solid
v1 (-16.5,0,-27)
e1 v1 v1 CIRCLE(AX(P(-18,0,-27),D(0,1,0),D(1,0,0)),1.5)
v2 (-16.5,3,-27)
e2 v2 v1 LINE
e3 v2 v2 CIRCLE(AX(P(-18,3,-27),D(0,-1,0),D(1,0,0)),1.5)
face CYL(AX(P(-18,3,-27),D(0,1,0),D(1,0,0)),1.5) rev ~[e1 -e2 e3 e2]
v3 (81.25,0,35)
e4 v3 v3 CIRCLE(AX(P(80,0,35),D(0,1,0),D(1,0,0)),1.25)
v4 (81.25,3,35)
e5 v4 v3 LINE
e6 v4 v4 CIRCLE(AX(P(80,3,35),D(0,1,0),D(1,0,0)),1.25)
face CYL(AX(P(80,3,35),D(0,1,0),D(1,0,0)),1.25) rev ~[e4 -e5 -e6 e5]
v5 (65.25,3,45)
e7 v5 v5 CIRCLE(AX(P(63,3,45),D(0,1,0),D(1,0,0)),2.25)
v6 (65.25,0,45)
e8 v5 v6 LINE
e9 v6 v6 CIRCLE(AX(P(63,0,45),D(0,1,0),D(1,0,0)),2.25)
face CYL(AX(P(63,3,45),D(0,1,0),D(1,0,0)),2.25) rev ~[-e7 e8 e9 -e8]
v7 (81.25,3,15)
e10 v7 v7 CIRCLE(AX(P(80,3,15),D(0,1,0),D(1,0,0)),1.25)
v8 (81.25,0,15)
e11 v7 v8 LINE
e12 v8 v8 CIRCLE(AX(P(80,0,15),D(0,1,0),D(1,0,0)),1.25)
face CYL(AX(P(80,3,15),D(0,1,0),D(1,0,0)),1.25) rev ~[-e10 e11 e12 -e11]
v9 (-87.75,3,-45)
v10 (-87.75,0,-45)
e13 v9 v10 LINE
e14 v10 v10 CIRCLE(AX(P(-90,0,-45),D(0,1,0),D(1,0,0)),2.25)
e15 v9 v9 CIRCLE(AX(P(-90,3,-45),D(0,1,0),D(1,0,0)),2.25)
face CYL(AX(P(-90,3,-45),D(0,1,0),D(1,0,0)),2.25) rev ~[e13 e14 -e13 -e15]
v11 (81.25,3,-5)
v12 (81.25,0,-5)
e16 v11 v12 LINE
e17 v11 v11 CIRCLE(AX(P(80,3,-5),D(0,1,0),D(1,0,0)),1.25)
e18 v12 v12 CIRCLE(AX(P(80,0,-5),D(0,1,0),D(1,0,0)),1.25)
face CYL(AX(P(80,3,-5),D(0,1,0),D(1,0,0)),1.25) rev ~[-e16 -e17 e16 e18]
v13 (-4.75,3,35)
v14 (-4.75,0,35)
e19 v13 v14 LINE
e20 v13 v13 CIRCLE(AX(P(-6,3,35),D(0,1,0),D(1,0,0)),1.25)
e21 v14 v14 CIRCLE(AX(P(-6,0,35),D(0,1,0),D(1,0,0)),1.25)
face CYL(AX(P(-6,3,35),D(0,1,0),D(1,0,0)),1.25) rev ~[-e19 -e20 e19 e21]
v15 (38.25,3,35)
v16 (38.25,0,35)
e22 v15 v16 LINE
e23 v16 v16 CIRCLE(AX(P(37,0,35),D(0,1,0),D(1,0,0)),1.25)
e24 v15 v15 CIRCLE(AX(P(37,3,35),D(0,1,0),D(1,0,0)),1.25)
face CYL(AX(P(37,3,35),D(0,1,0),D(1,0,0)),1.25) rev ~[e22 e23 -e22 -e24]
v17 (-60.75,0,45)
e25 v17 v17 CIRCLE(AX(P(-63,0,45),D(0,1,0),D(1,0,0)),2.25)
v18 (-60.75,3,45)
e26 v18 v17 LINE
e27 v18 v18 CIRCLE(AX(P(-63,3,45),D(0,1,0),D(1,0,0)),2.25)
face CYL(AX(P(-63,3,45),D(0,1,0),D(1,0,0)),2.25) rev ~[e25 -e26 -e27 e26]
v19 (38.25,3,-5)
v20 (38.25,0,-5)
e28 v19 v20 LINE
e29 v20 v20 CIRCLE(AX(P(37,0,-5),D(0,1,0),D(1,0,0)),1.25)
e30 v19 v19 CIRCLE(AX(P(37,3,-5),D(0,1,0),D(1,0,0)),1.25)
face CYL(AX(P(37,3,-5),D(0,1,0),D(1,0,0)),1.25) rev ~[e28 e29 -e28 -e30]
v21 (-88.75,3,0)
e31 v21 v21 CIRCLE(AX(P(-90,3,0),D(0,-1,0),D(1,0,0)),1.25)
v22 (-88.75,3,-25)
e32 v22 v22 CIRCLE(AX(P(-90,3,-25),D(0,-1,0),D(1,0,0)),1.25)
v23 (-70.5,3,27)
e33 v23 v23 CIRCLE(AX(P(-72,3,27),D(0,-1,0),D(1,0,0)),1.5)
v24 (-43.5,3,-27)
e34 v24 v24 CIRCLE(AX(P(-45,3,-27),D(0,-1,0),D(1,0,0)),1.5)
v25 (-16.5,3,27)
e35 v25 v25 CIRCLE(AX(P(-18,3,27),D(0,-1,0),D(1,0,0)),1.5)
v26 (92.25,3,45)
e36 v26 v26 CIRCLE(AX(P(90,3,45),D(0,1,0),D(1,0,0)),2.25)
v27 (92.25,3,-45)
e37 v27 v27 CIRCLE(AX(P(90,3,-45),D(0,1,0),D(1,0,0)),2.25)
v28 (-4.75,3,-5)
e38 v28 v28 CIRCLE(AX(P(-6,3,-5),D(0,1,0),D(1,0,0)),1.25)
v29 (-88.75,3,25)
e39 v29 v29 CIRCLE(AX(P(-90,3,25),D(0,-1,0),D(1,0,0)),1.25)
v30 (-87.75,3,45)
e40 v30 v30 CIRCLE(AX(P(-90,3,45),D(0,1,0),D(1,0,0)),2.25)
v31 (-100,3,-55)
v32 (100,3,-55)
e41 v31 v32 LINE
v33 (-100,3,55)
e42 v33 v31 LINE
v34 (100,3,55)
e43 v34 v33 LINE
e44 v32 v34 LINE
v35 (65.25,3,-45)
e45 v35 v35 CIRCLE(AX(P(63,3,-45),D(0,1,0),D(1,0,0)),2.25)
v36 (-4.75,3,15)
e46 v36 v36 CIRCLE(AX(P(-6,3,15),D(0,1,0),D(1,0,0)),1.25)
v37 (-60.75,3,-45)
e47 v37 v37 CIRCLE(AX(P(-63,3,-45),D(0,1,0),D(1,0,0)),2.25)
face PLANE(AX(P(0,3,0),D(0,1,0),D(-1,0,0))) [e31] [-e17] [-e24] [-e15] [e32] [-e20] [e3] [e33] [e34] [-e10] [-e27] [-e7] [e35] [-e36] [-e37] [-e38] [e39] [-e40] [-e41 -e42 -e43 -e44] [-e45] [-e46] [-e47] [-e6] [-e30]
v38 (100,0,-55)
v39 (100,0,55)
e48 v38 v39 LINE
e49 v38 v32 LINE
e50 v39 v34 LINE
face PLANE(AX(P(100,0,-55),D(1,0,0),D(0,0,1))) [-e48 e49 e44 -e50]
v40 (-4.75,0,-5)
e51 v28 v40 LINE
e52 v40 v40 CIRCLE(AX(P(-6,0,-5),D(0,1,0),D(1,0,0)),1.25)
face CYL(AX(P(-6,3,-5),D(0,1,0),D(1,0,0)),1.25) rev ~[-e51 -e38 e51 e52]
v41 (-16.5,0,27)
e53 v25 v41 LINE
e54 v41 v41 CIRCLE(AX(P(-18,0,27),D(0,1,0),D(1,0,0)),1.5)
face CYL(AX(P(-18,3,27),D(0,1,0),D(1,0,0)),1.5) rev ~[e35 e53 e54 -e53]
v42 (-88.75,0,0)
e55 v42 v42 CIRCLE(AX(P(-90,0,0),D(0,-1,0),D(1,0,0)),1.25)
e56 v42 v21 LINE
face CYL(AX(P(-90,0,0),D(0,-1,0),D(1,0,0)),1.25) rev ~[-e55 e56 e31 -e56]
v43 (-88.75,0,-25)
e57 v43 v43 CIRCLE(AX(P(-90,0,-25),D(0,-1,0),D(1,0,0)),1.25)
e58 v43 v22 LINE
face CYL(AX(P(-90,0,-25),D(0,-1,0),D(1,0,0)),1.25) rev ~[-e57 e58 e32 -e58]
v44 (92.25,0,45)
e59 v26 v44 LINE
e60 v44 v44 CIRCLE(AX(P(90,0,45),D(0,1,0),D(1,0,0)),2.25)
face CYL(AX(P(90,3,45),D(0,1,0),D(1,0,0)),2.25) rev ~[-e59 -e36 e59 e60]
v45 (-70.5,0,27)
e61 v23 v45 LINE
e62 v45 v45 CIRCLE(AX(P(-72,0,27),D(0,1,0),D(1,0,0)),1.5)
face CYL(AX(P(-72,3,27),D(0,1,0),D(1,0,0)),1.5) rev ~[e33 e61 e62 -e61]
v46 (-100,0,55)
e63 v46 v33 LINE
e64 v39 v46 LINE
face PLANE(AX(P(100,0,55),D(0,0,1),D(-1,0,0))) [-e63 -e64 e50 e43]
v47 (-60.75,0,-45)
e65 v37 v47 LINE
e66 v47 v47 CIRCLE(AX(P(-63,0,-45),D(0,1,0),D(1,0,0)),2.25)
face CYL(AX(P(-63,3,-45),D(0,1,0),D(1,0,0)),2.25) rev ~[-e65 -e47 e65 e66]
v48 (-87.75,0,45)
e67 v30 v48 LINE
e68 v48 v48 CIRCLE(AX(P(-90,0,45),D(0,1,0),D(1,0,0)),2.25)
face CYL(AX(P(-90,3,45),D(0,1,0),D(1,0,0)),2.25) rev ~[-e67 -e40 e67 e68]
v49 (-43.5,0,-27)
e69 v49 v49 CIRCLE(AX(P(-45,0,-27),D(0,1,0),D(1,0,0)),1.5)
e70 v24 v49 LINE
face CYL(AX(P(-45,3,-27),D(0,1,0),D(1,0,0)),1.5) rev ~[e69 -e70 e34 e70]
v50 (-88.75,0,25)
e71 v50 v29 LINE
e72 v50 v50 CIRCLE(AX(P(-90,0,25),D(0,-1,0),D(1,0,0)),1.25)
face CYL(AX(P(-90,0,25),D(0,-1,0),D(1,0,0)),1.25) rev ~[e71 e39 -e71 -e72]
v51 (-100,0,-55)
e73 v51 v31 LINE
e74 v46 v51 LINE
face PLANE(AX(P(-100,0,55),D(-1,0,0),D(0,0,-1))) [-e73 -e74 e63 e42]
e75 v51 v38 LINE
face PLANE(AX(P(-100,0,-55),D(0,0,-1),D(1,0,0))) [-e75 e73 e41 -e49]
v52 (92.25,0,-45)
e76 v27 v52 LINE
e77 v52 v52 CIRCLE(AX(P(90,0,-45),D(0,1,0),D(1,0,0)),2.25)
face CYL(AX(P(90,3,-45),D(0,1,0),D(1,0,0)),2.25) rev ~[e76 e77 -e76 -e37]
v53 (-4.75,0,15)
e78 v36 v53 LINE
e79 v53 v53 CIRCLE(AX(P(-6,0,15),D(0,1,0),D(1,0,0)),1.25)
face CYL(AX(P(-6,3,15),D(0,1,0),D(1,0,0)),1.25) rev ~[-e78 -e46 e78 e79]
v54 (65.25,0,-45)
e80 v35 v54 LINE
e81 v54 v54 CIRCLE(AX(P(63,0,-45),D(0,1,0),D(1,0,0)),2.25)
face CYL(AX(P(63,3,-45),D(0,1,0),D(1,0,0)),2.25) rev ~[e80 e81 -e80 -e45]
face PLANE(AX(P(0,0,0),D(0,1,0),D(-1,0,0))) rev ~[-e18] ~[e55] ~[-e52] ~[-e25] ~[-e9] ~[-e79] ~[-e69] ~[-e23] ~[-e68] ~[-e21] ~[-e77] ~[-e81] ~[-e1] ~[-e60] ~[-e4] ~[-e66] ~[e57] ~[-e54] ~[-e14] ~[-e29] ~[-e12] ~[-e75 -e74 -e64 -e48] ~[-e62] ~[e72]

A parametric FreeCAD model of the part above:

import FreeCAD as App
import Part
import Sketcher

doc = App.newDocument("Part")
body = doc.addObject("PartDesign::Body", "Body")

sketch1 = body.newObject("Sketcher::SketchObject", "Sketch")
sketch1.AttachmentSupport = (doc.getObject("XZ_Plane"), [""])
sketch1.MapMode = "FlatFace"
sketch1.addGeometry(Part.LineSegment(App.Vector(-100, 55, 0), App.Vector(100, 55, 0)), False)
sketch1.addGeometry(Part.LineSegment(App.Vector(100, 55, 0), App.Vector(100, -55, 0)), False)
sketch1.addGeometry(Part.LineSegment(App.Vector(100, -55, 0), App.Vector(-100, -55, 0)), False)
sketch1.addGeometry(Part.LineSegment(App.Vector(-100, -55, 0), App.Vector(-100, 55, 0)), False)
sketch1.addConstraint(Sketcher.Constraint("Coincident", 0, 2, 1, 1))
sketch1.addConstraint(Sketcher.Constraint("Coincident", 1, 2, 2, 1))
sketch1.addConstraint(Sketcher.Constraint("Coincident", 2, 2, 3, 1))
sketch1.addConstraint(Sketcher.Constraint("Coincident", 3, 2, 0, 1))
sketch1.addConstraint(Sketcher.Constraint("Horizontal", 0))
sketch1.addConstraint(Sketcher.Constraint("Vertical", 1))
sketch1.addConstraint(Sketcher.Constraint("Horizontal", 2))
sketch1.addConstraint(Sketcher.Constraint("Vertical", 3))
sketch1.addConstraint(Sketcher.Constraint("Symmetric", 0, 2, 2, 2, -1, 1))
sketch1.addConstraint(Sketcher.Constraint("DistanceX", 0, 1, 0, 2, 200.0))
sketch1.addConstraint(Sketcher.Constraint("DistanceY", 1, 2, 1, 1, 110.0))
pad1 = body.newObject("PartDesign::Pad", "Pad")
pad1.Profile = sketch1
pad1.Length = 3
pad1.Reversed = True

sketch2 = body.newObject("Sketcher::SketchObject", "Sketch001")
sketch2.AttachmentSupport = (doc.getObject("XZ_Plane"), [""])
sketch2.MapMode = "FlatFace"
sketch2.AttachmentOffset = App.Placement(App.Vector(0, 0, -3), App.Rotation())
sketch2.addGeometry(Part.Circle(App.Vector(80, 35, 0), App.Vector(0, 0, 1), 1.25), False)
sketch2.addGeometry(Part.Circle(App.Vector(37, 35, 0), App.Vector(0, 0, 1), 1.25), False)
sketch2.addGeometry(Part.Circle(App.Vector(-6, 35, 0), App.Vector(0, 0, 1), 1.25), False)
sketch2.addGeometry(Part.Circle(App.Vector(-6, 15, 0), App.Vector(0, 0, 1), 1.25), False)
sketch2.addGeometry(Part.Circle(App.Vector(-6, -5, 0), App.Vector(0, 0, 1), 1.25), False)
sketch2.addGeometry(Part.Circle(App.Vector(37, -5, 0), App.Vector(0, 0, 1), 1.25), False)
sketch2.addGeometry(Part.Circle(App.Vector(80, -5, 0), App.Vector(0, 0, 1), 1.25), False)
sketch2.addGeometry(Part.Circle(App.Vector(80, 15, 0), App.Vector(0, 0, 1), 1.25), False)
sketch2.addConstraint(Sketcher.Constraint("Equal", 0, 1))
sketch2.addConstraint(Sketcher.Constraint("Equal", 1, 2))
sketch2.addConstraint(Sketcher.Constraint("Equal", 2, 3))
sketch2.addConstraint(Sketcher.Constraint("Equal", 3, 4))
sketch2.addConstraint(Sketcher.Constraint("Equal", 4, 5))
sketch2.addConstraint(Sketcher.Constraint("Equal", 5, 6))
sketch2.addConstraint(Sketcher.Constraint("Equal", 6, 7))
sketch2.addConstraint(Sketcher.Constraint("Horizontal", 0, 3, 1, 3))
sketch2.addConstraint(Sketcher.Constraint("Horizontal", 1, 3, 2, 3))
sketch2.addConstraint(Sketcher.Constraint("Horizontal", 4, 3, 5, 3))
sketch2.addConstraint(Sketcher.Constraint("Horizontal", 5, 3, 6, 3))
sketch2.addConstraint(Sketcher.Constraint("Horizontal", 3, 3, 7, 3))
sketch2.addConstraint(Sketcher.Constraint("Vertical", 2, 3, 3, 3))
sketch2.addConstraint(Sketcher.Constraint("Vertical", 3, 3, 4, 3))
sketch2.addConstraint(Sketcher.Constraint("Vertical", 1, 3, 5, 3))
sketch2.addConstraint(Sketcher.Constraint("Vertical", 0, 3, 6, 3))
sketch2.addConstraint(Sketcher.Constraint("Vertical", 6, 3, 7, 3))
sketch2.addConstraint(Sketcher.Constraint("Diameter", 0, 2.5))
sketch2.addConstraint(Sketcher.Constraint("DistanceX", 1, 3, 0, 3, 43.0))
sketch2.addConstraint(Sketcher.Constraint("DistanceX", 2, 3, 1, 3, 43.0))
sketch2.addConstraint(Sketcher.Constraint("DistanceY", 3, 3, 2, 3, 20.0))
sketch2.addConstraint(Sketcher.Constraint("DistanceY", 4, 3, 3, 3, 20.0))
sketch2.addConstraint(Sketcher.Constraint("DistanceX", -1, 1, 0, 3, 80.0))
sketch2.addConstraint(Sketcher.Constraint("DistanceY", -1, 1, 0, 3, 35.0))
pocket1 = body.newObject("PartDesign::Pocket", "Pocket")
pocket1.Profile = sketch2
pocket1.Length = 3
pocket1.Reversed = True

sketch3 = body.newObject("Sketcher::SketchObject", "Sketch002")
sketch3.AttachmentSupport = (doc.getObject("XZ_Plane"), [""])
sketch3.MapMode = "FlatFace"
sketch3.AttachmentOffset = App.Placement(App.Vector(0, 0, -3), App.Rotation())
sketch3.addGeometry(Part.Circle(App.Vector(-90, 45, 0), App.Vector(0, 0, 1), 2.25), False)
sketch3.addGeometry(Part.Circle(App.Vector(-90, -45, 0), App.Vector(0, 0, 1), 2.25), False)
sketch3.addGeometry(Part.Circle(App.Vector(90, -45, 0), App.Vector(0, 0, 1), 2.25), False)
sketch3.addGeometry(Part.Circle(App.Vector(90, 45, 0), App.Vector(0, 0, 1), 2.25), False)
sketch3.addGeometry(Part.Circle(App.Vector(63, -45, 0), App.Vector(0, 0, 1), 2.25), False)
sketch3.addGeometry(Part.Circle(App.Vector(63, 45, 0), App.Vector(0, 0, 1), 2.25), False)
sketch3.addGeometry(Part.Circle(App.Vector(-63, 45, 0), App.Vector(0, 0, 1), 2.25), False)
sketch3.addGeometry(Part.Circle(App.Vector(-63, -45, 0), App.Vector(0, 0, 1), 2.25), False)
sketch3.addConstraint(Sketcher.Constraint("Equal", 0, 1))
sketch3.addConstraint(Sketcher.Constraint("Equal", 1, 2))
sketch3.addConstraint(Sketcher.Constraint("Equal", 2, 3))
sketch3.addConstraint(Sketcher.Constraint("Equal", 3, 4))
sketch3.addConstraint(Sketcher.Constraint("Equal", 4, 5))
sketch3.addConstraint(Sketcher.Constraint("Equal", 5, 6))
sketch3.addConstraint(Sketcher.Constraint("Equal", 6, 7))
sketch3.addConstraint(Sketcher.Constraint("Symmetric", 0, 3, 2, 3, -1, 1))
sketch3.addConstraint(Sketcher.Constraint("Symmetric", 1, 3, 3, 3, -1, 1))
sketch3.addConstraint(Sketcher.Constraint("Symmetric", 4, 3, 6, 3, -1, 1))
sketch3.addConstraint(Sketcher.Constraint("Symmetric", 5, 3, 7, 3, -1, 1))
sketch3.addConstraint(Sketcher.Constraint("Symmetric", 1, 3, 2, 3, -2))
sketch3.addConstraint(Sketcher.Constraint("Symmetric", 5, 3, 6, 3, -2))
sketch3.addConstraint(Sketcher.Constraint("Horizontal", 2, 3, 4, 3))
sketch3.addConstraint(Sketcher.Constraint("Diameter", 0, 4.5))
sketch3.addConstraint(Sketcher.Constraint("DistanceX", 0, 3, -1, 1, 90.0))
sketch3.addConstraint(Sketcher.Constraint("DistanceY", 1, 3, 0, 3, 90.0))
sketch3.addConstraint(Sketcher.Constraint("DistanceX", 4, 3, 2, 3, 27.0))
pocket2 = body.newObject("PartDesign::Pocket", "Pocket001")
pocket2.Profile = sketch3
pocket2.Length = 3
pocket2.Reversed = True

sketch4 = body.newObject("Sketcher::SketchObject", "Sketch003")
sketch4.AttachmentSupport = (doc.getObject("XZ_Plane"), [""])
sketch4.MapMode = "FlatFace"
sketch4.addGeometry(Part.Circle(App.Vector(-90, 0, 0), App.Vector(0, 0, 1), 1.25), False)
sketch4.addGeometry(Part.Circle(App.Vector(-90, 25, 0), App.Vector(0, 0, 1), 1.25), False)
sketch4.addGeometry(Part.Circle(App.Vector(-90, -25, 0), App.Vector(0, 0, 1), 1.25), False)
sketch4.addConstraint(Sketcher.Constraint("Equal", 0, 1))
sketch4.addConstraint(Sketcher.Constraint("Equal", 1, 2))
sketch4.addConstraint(Sketcher.Constraint("Symmetric", 1, 3, 2, 3, -1))
sketch4.addConstraint(Sketcher.Constraint("PointOnObject", 0, 3, -1))
sketch4.addConstraint(Sketcher.Constraint("Vertical", 0, 3, 1, 3))
sketch4.addConstraint(Sketcher.Constraint("Diameter", 0, 2.5))
sketch4.addConstraint(Sketcher.Constraint("DistanceX", 0, 3, -1, 1, 90.0))
sketch4.addConstraint(Sketcher.Constraint("DistanceY", -1, 1, 1, 3, 25.0))
pocket3 = body.newObject("PartDesign::Pocket", "Pocket002")
pocket3.Profile = sketch4
pocket3.Length = 3

sketch5 = body.newObject("Sketcher::SketchObject", "Sketch004")
sketch5.AttachmentSupport = (doc.getObject("XZ_Plane"), [""])
sketch5.MapMode = "FlatFace"
sketch5.AttachmentOffset = App.Placement(App.Vector(0, 0, -3), App.Rotation())
sketch5.addGeometry(Part.Circle(App.Vector(-72, 27, 0), App.Vector(0, 0, 1), 1.5), False)
sketch5.addGeometry(Part.Circle(App.Vector(-18, -27, 0), App.Vector(0, 0, 1), 1.5), False)
sketch5.addGeometry(Part.Circle(App.Vector(-45, -27, 0), App.Vector(0, 0, 1), 1.5), False)
sketch5.addGeometry(Part.Circle(App.Vector(-18, 27, 0), App.Vector(0, 0, 1), 1.5), False)
sketch5.addConstraint(Sketcher.Constraint("Equal", 0, 1))
sketch5.addConstraint(Sketcher.Constraint("Equal", 1, 2))
sketch5.addConstraint(Sketcher.Constraint("Equal", 2, 3))
sketch5.addConstraint(Sketcher.Constraint("Symmetric", 1, 3, 3, 3, -1))
sketch5.addConstraint(Sketcher.Constraint("Horizontal", 1, 3, 2, 3))
sketch5.addConstraint(Sketcher.Constraint("Horizontal", 0, 3, 3, 3))
sketch5.addConstraint(Sketcher.Constraint("Diameter", 0, 3.0))
sketch5.addConstraint(Sketcher.Constraint("DistanceY", -1, 1, 0, 3, 27.0))
sketch5.addConstraint(Sketcher.Constraint("DistanceX", 0, 3, 1, 3, 54.0))
sketch5.addConstraint(Sketcher.Constraint("DistanceX", 2, 3, 1, 3, 27.0))
sketch5.addConstraint(Sketcher.Constraint("DistanceX", 0, 3, -1, 1, 72.0))
pocket4 = body.newObject("PartDesign::Pocket", "Pocket003")
pocket4.Profile = sketch5
pocket4.Length = 10
pocket4.Reversed = True

doc.recompute()
